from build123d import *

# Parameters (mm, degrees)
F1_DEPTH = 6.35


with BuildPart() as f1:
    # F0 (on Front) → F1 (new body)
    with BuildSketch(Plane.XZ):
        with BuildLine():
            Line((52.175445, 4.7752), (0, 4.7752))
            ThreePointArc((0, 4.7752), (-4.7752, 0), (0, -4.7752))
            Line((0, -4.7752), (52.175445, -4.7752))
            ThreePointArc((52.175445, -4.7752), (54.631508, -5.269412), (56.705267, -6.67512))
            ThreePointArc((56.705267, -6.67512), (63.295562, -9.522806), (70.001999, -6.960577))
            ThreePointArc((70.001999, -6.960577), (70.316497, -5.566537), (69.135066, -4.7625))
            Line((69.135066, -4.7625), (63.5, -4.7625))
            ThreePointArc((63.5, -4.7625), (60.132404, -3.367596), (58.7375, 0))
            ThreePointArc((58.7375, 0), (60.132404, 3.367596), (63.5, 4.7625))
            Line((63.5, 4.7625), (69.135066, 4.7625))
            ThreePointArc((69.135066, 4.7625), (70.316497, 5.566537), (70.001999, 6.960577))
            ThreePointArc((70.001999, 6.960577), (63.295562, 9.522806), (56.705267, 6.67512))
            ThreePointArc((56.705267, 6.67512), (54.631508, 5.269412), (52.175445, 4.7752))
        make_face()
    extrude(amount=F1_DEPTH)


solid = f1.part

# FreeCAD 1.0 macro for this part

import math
import FreeCAD as App
import Part
import Sketcher

V = App.Vector
Q = App.Units.Quantity

doc = App.newDocument("Part")
body = doc.addObject("PartDesign::Body", "Body")

# Sketch on XZ plane
sketch1 = doc.addObject("Sketcher::SketchObject", "Sketch")
body.addObject(sketch1)
sketch1.AttachmentSupport = (doc.XZ_Plane, [""])
sketch1.MapMode = "FlatFace"
sketch1.addGeometry([
    Part.LineSegment(V(52.175445, 4.7752, 0), V(0, 4.7752, 0)),  # 0
    Part.ArcOfCircle(Part.Circle(V(0, 0, 0), V(0, 0, 1), 4.7752), math.radians(90), math.radians(270)),  # 1
    Part.LineSegment(V(0, -4.7752, 0), V(52.175445, -4.7752, 0)),  # 2
    Part.ArcOfCircle(Part.Circle(V(52.175445, -11.125201, 0), V(0, 0, 1), 6.350001), math.radians(44.491227), math.radians(89.999996)),  # 3
    Part.ArcOfCircle(Part.Circle(V(63.5, -0.000001, 0), V(0, 0, 1), 9.524999), math.radians(-135.50878), math.radians(-46.950917)),  # 4
    Part.ArcOfCircle(Part.Circle(V(69.135066, -6.0325, 0), V(0, 0, 1), 1.27), math.radians(-46.950953), math.radians(90.000021)),  # 5
    Part.LineSegment(V(69.135066, -4.7625, 0), V(63.5, -4.7625, 0)),  # 6
    Part.ArcOfCircle(Part.Circle(V(63.5, 0, 0), V(0, 0, 1), 4.7625), math.radians(-179.999998), math.radians(-90.000002)),  # 7
    Part.ArcOfCircle(Part.Circle(V(63.5, 0, 0), V(0, 0, 1), 4.7625), math.radians(90.000002), math.radians(179.999998)),  # 8
    Part.LineSegment(V(63.5, 4.7625, 0), V(69.135066, 4.7625, 0)),  # 9
    Part.ArcOfCircle(Part.Circle(V(69.135066, 6.0325, 0), V(0, 0, 1), 1.27), math.radians(-90.000021), math.radians(46.950953)),  # 10
    Part.ArcOfCircle(Part.Circle(V(63.5, 0.000001, 0), V(0, 0, 1), 9.524999), math.radians(46.950917), math.radians(135.50878)),  # 11
    Part.ArcOfCircle(Part.Circle(V(52.175445, 11.125201, 0), V(0, 0, 1), 6.350001), math.radians(-89.999996), math.radians(-44.491227)),  # 12
], False)
sketch1.addConstraint([
    Sketcher.Constraint("Tangent", 0, 2, 1, 1),
    Sketcher.Constraint("Tangent", 1, 2, 2, 1),
    Sketcher.Constraint("Tangent", 2, 2, 3, 2),
    Sketcher.Constraint("Tangent", 3, 1, 4, 1),
    Sketcher.Constraint("Tangent", 4, 2, 5, 1),
    Sketcher.Constraint("Tangent", 5, 2, 6, 1),
    Sketcher.Constraint("Tangent", 6, 2, 7, 2),
    Sketcher.Constraint("Tangent", 7, 1, 8, 2),
    Sketcher.Constraint("Tangent", 8, 1, 9, 1),
    Sketcher.Constraint("Tangent", 9, 2, 10, 1),
    Sketcher.Constraint("Tangent", 10, 2, 11, 1),
    Sketcher.Constraint("Tangent", 11, 2, 12, 2),
    Sketcher.Constraint("Tangent", 12, 1, 0, 1),
    Sketcher.Constraint("Horizontal", 0),
    Sketcher.Constraint("Horizontal", 2),
    Sketcher.Constraint("Horizontal", 6),
    Sketcher.Constraint("Horizontal", 9),
    Sketcher.Constraint("Coincident", 1, 3, -1, 1),
    Sketcher.Constraint("Coincident", 7, 3, 4, 3),
    Sketcher.Constraint("Coincident", 11, 3, 4, 3),
    Sketcher.Constraint("Equal", 7, 8),
    Sketcher.Constraint("Equal", 5, 10),
    Sketcher.Constraint("Equal", 4, 11),
    Sketcher.Constraint("Equal", 3, 12),
    Sketcher.Constraint("PointOnObject", 4, 3, -1),
    Sketcher.Constraint("PointOnObject", 7, 1, -1),
    Sketcher.Constraint("Radius", 3, Q("0.25 in")),
    Sketcher.Constraint("Radius", 5, Q("0.05 in")),
    Sketcher.Constraint("Radius", 1, Q("0.188 in")),
    Sketcher.Constraint("Radius", 4, Q("0.375 in")),
    Sketcher.Constraint("Radius", 7, Q("0.1875 in")),
    Sketcher.Constraint("DistanceX", -1, 1, 4, 3, Q("2.5 in")),
])
pad1 = doc.addObject("PartDesign::Pad", "Pad")
body.addObject(pad1)
pad1.Profile = sketch1
pad1.Length = Q("0.25 in")

doc.recompute()
